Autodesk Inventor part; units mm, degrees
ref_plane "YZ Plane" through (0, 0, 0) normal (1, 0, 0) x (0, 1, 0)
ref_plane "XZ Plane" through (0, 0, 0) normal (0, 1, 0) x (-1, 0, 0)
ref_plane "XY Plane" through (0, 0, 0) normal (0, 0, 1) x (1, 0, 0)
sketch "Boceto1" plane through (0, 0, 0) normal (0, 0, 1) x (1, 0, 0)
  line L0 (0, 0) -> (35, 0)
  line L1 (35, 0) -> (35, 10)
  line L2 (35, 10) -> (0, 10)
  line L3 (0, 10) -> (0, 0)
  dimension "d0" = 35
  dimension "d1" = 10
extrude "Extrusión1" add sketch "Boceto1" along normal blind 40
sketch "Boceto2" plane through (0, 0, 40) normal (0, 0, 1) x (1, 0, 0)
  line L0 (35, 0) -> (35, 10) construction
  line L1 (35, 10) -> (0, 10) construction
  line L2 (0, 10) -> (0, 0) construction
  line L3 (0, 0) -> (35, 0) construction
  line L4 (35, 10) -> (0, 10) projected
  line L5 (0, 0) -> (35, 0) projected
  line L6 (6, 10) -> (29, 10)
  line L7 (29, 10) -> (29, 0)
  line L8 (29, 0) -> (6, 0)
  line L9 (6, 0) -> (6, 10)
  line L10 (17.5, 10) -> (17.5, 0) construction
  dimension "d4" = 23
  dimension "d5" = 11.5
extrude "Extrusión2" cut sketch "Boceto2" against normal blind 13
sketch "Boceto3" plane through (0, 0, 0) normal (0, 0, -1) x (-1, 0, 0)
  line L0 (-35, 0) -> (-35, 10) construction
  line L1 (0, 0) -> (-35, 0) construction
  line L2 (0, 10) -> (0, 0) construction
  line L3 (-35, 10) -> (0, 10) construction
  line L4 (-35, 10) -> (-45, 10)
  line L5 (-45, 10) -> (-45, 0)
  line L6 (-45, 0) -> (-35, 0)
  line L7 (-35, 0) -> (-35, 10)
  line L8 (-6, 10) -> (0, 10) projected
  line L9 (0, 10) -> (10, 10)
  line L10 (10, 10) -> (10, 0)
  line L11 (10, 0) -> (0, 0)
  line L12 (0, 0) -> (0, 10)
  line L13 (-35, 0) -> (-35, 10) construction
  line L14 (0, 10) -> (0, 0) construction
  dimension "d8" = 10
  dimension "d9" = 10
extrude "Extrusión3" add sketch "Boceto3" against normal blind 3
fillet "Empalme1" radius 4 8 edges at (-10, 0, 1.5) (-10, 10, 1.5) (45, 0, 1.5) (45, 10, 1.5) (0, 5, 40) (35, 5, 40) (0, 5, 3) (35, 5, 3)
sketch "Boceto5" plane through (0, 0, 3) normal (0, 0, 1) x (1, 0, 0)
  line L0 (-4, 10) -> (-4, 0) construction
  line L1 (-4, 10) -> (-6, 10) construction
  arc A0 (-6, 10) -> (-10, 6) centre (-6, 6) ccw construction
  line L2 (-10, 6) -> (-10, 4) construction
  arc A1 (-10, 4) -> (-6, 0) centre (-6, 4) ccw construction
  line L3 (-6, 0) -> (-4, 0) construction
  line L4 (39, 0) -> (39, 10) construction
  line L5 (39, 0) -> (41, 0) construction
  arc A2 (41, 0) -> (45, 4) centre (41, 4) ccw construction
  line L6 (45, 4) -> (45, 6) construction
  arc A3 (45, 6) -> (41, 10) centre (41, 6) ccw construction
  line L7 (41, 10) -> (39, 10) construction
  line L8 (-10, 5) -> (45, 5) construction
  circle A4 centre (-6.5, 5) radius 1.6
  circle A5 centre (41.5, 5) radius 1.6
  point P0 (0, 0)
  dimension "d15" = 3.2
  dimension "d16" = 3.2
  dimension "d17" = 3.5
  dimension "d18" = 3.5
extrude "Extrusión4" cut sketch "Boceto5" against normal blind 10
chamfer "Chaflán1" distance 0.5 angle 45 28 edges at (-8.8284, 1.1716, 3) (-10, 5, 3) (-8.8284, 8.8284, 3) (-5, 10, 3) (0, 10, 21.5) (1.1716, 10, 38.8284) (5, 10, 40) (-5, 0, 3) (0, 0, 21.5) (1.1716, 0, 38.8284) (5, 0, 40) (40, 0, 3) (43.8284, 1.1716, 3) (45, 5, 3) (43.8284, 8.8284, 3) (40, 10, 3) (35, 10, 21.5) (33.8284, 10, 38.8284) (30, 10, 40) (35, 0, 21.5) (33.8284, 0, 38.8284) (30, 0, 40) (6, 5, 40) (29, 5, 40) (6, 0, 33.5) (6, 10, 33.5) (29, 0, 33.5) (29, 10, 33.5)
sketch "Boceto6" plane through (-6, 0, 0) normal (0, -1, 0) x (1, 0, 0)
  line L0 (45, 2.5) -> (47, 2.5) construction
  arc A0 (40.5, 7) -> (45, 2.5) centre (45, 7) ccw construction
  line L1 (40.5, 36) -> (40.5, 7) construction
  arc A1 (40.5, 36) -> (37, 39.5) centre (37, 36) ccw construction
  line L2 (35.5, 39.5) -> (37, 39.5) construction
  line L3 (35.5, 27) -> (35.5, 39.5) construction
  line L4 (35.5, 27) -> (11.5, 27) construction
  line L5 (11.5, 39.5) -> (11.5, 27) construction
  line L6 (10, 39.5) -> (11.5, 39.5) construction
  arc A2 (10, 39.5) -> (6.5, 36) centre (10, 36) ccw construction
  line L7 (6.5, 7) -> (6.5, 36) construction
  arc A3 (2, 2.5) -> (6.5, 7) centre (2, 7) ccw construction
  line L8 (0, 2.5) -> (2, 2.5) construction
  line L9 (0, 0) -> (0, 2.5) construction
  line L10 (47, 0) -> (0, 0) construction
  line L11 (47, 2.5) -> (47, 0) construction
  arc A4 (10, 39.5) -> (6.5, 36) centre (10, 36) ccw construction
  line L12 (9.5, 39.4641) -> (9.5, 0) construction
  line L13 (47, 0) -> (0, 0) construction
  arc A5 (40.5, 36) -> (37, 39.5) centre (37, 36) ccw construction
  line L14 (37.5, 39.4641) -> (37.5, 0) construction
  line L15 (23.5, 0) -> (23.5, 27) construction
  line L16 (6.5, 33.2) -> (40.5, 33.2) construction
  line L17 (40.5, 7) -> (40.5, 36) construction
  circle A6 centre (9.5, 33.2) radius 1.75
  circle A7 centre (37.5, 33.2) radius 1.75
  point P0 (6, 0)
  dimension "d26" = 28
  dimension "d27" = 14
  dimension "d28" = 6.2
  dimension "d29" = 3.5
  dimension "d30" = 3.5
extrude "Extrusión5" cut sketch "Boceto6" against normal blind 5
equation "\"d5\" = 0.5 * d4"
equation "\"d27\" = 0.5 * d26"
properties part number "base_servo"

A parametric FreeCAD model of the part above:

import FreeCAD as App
import Part
import Sketcher
Q = App.Units.Quantity


def edges_at(feature, points):
    """Names of the edges that pass closest to the given points."""
    edges = feature.Shape.Edges
    near = lambda p: min(range(len(edges)), key=lambda i: edges[i].distToShape(Part.Vertex(*p))[0])
    return sorted({f"Edge{near(p) + 1}" for p in points})


def add_polygon(sketch, points):
    """Adds a closed chain of lines whose ends are joined by coincident constraints."""
    first, n = sketch.GeometryCount, len(points)
    for a, b in zip(points, points[1:] + points[:1]):
        sketch.addGeometry(Part.LineSegment(App.Vector(*a, 0), App.Vector(*b, 0)), False)
    for i in range(n):
        sketch.addConstraint(Sketcher.Constraint("Coincident", first + i, 2, first + (i + 1) % n, 1))

doc = App.newDocument("Part")
body = doc.addObject("PartDesign::Body", "Body")

sketch1 = body.newObject("Sketcher::SketchObject", "Sketch")
sketch1.AttachmentSupport = (doc.getObject("XY_Plane"), [""])
sketch1.MapMode = "FlatFace"
add_polygon(sketch1, [(0, 10), (0, 0), (35, 0), (35, 10)])
sketch1.addConstraint([
    Sketcher.Constraint("Vertical", 0),
    Sketcher.Constraint("Horizontal", 1),
    Sketcher.Constraint("Vertical", 2),
    Sketcher.Constraint("Horizontal", 3),
    Sketcher.Constraint("Coincident", 0, 2, -1, 1),
    Sketcher.Constraint("DistanceX", 1, 1, 1, 2, Q("35 mm")),
    Sketcher.Constraint("DistanceY", 0, 2, 0, 1, Q("10 mm")),
])
pad1 = body.newObject("PartDesign::Pad", "Pad")
pad1.Profile = sketch1
pad1.Length = 40

sketch2 = body.newObject("Sketcher::SketchObject", "Sketch001")
sketch2.AttachmentSupport = (doc.getObject("XY_Plane"), [""])
sketch2.MapMode = "FlatFace"
sketch2.AttachmentOffset = App.Placement(App.Vector(0, 0, 40), App.Rotation())
add_polygon(sketch2, [(29, 0), (29, 10), (6, 10), (6, 0)])
sketch2.addConstraint([
    Sketcher.Constraint("Vertical", 0),
    Sketcher.Constraint("Horizontal", 1),
    Sketcher.Constraint("Vertical", 2),
    Sketcher.Constraint("Horizontal", 3),
    Sketcher.Constraint("PointOnObject", 2, 2, -1),
    Sketcher.Constraint("DistanceX", 1, 2, 1, 1, Q("23 mm")),
    Sketcher.Constraint("DistanceY", 0, 1, 0, 2, Q("10 mm")),
    Sketcher.Constraint("DistanceX", -1, 1, 0, 2, Q("29 mm")),
])
pocket1 = body.newObject("PartDesign::Pocket", "Pocket")
pocket1.Profile = sketch2
pocket1.Length = 13

sketch3 = body.newObject("Sketcher::SketchObject", "Sketch002")
sketch3.AttachmentSupport = (doc.getObject("XY_Plane"), [""])
sketch3.MapMode = "FlatFace"
add_polygon(sketch3, [(35, 0), (35, 10), (45, 10), (45, 0)])
add_polygon(sketch3, [(-10, 10), (0, 10), (0, 0), (-10, 0)])
sketch3.addConstraint([
    Sketcher.Constraint("Vertical", 0),
    Sketcher.Constraint("Horizontal", 1),
    Sketcher.Constraint("Vertical", 2),
    Sketcher.Constraint("Horizontal", 3),
    Sketcher.Constraint("Horizontal", 4),
    Sketcher.Constraint("Vertical", 5),
    Sketcher.Constraint("Horizontal", 6),
    Sketcher.Constraint("Vertical", 7),
    Sketcher.Constraint("Coincident", 5, 2, -1, 1),
    Sketcher.Constraint("PointOnObject", 2, 2, -1),
    Sketcher.Constraint("Horizontal", 1, 2, 4, 2),
    Sketcher.Constraint("Equal", 3, 4),
    Sketcher.Constraint("Equal", 6, 0),
    Sketcher.Constraint("DistanceX", 1, 1, 1, 2, Q("10 mm")),
    Sketcher.Constraint("DistanceX", -1, 1, 0, 2, Q("35 mm")),
])
pad2 = body.newObject("PartDesign::Pad", "Pad001")
pad2.Profile = sketch3
pad2.Length = 3
doc.recompute()

fillet = body.newObject("PartDesign::Fillet", "Fillet")
fillet.Base = (pad2, edges_at(pad2, [
    (-10, 0, 1.5),
    (-10, 10, 1.5),
    (45, 0, 1.5),
    (45, 10, 1.5),
    (0, 5, 40),
    (35, 5, 40),
    (0, 5, 3),
    (35, 5, 3),
]))
fillet.Radius = 4

sketch4 = body.newObject("Sketcher::SketchObject", "Sketch003")
sketch4.AttachmentSupport = (doc.getObject("XY_Plane"), [""])
sketch4.MapMode = "FlatFace"
sketch4.AttachmentOffset = App.Placement(App.Vector(0, 0, 3), App.Rotation())
sketch4.addGeometry([
    Part.Circle(App.Vector(-6.5, 5, 0), App.Vector(0, 0, 1), 1.6),
    Part.Circle(App.Vector(41.5, 5, 0), App.Vector(0, 0, 1), 1.6),
], False)
sketch4.addConstraint([
    Sketcher.Constraint("Equal", 0, 1),
    Sketcher.Constraint("Horizontal", 0, 3, 1, 3),
    Sketcher.Constraint("Diameter", 0, Q("3.2 mm")),
    Sketcher.Constraint("DistanceY", -1, 1, 0, 3, Q("5 mm")),
    Sketcher.Constraint("DistanceX", 0, 3, 1, 3, Q("48 mm")),
    Sketcher.Constraint("DistanceX", 0, 3, -1, 1, Q("6.5 mm")),
])
pocket2 = body.newObject("PartDesign::Pocket", "Pocket001")
pocket2.Profile = sketch4
pocket2.Length = 10
doc.recompute()

chamfer = body.newObject("PartDesign::Chamfer", "Chamfer")
chamfer.Base = (pocket2, edges_at(pocket2, [
    (-8.828, 1.172, 3),
    (-10, 5, 3),
    (-8.828, 8.828, 3),
    (-5, 10, 3),
    (0, 10, 21.5),
    (1.172, 10, 38.828),
    (5, 10, 40),
    (-5, 0, 3),
    (0, 0, 21.5),
    (1.172, 0, 38.828),
    (5, 0, 40),
    (40, 0, 3),
    (43.828, 1.172, 3),
    (45, 5, 3),
    (43.828, 8.828, 3),
    (40, 10, 3),
    (35, 10, 21.5),
    (33.828, 10, 38.828),
    (30, 10, 40),
    (35, 0, 21.5),
    (33.828, 0, 38.828),
    (30, 0, 40),
    (6, 5, 40),
    (29, 5, 40),
    (6, 0, 33.5),
    (6, 10, 33.5),
    (29, 0, 33.5),
    (29, 10, 33.5),
]))
chamfer.Size = 0.5

sketch5 = body.newObject("Sketcher::SketchObject", "Sketch004")
sketch5.AttachmentSupport = (doc.getObject("XZ_Plane"), [""])
sketch5.MapMode = "FlatFace"
sketch5.addGeometry([
    Part.Circle(App.Vector(3.5, 33.2, 0), App.Vector(0, 0, 1), 1.8),
    Part.Circle(App.Vector(31.5, 33.2, 0), App.Vector(0, 0, 1), 1.8),
], False)
sketch5.addConstraint([
    Sketcher.Constraint("Equal", 0, 1),
    Sketcher.Constraint("Horizontal", 0, 3, 1, 3),
    Sketcher.Constraint("Diameter", 0, Q("3.5 mm")),
    Sketcher.Constraint("DistanceX", 0, 3, 1, 3, Q("28 mm")),
    Sketcher.Constraint("DistanceX", -1, 1, 0, 3, Q("3.5 mm")),
    Sketcher.Constraint("DistanceY", -1, 1, 0, 3, Q("33.2 mm")),
])
pocket3 = body.newObject("PartDesign::Pocket", "Pocket002")
pocket3.Profile = sketch5
pocket3.Length = 5

doc.recompute()
